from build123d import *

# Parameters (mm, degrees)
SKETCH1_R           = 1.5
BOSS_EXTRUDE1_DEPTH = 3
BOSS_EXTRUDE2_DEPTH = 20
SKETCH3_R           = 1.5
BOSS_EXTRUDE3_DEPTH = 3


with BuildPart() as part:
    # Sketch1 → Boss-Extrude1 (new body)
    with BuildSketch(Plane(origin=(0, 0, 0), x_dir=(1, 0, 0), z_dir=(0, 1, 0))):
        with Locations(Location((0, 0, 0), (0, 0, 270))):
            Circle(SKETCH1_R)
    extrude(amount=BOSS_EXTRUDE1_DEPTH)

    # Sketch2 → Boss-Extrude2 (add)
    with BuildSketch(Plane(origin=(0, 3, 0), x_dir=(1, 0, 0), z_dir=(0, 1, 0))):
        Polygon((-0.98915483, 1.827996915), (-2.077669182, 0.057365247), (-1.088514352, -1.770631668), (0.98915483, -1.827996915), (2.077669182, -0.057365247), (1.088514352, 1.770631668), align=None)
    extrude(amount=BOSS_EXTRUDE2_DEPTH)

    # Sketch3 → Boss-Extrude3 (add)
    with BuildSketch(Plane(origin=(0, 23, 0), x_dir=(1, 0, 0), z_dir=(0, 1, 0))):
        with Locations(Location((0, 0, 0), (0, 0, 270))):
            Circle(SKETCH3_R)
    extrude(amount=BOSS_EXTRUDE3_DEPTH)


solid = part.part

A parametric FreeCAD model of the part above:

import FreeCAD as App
import Part
import Sketcher
from FreeCAD import Vector


def add_polygon(sketch, points):
    """Adds a closed chain of lines whose ends are joined by coincident constraints."""
    first, n = sketch.GeometryCount, len(points)
    for a, b in zip(points, points[1:] + points[:1]):
        sketch.addGeometry(Part.LineSegment(App.Vector(*a, 0), App.Vector(*b, 0)), False)
    for i in range(n):
        sketch.addConstraint(Sketcher.Constraint("Coincident", first + i, 2, first + (i + 1) % n, 1))

doc = App.newDocument("Part")
body = doc.addObject("PartDesign::Body", "Body")

# Sketch on XZ plane
sketch1 = body.newObject("Sketcher::SketchObject", "Sketch")
sketch1.AttachmentSupport = (doc.getObject("XZ_Plane"), [""])
sketch1.MapMode = "FlatFace"
sketch1.addGeometry(Part.Circle(Vector(0, 0, 0), Vector(0, 0, 1), 1.5), False)
sketch1.addConstraint([
    Sketcher.Constraint("Coincident", 0, 3, -1, 1),
    Sketcher.Constraint("Diameter", 0, 3.0),
])
pad1 = body.newObject("PartDesign::Pad", "Pad")
pad1.Profile = sketch1
pad1.Length = 3
pad1.Reversed = True

# Sketch on XZ plane
sketch2 = body.newObject("Sketcher::SketchObject", "Sketch001")
sketch2.AttachmentSupport = (doc.getObject("XZ_Plane"), [""])
sketch2.MapMode = "FlatFace"
sketch2.AttachmentOffset = App.Placement(Vector(0, 0, -3), App.Rotation())
add_polygon(sketch2, [(-0.989155, -1.827997), (-2.077669, -0.057365), (-1.088514, 1.770632), (0.989155, 1.827997), (2.077669, 0.057365), (1.088514, -1.770632)])  # lines 0-5
sketch2.addConstraint([
    Sketcher.Constraint("Symmetric", 0, 2, 3, 2, -1, 1),
    Sketcher.Constraint("Symmetric", 1, 2, 4, 2, -1, 1),
    Sketcher.Constraint("Symmetric", 2, 2, 5, 2, -1, 1),
    Sketcher.Constraint("Equal", 0, 1),
    Sketcher.Constraint("Equal", 1, 2),
    Sketcher.Constraint("Distance", 0, 2.078461),
    Sketcher.Constraint("DistanceX", 0, 2, -1, 1, 2.077669),
    Sketcher.Constraint("DistanceY", -1, 1, 1, 2, 1.770632),
    Sketcher.Constraint("DistanceY", 3, 2, 2, 2, 1.770632),
])
pad2 = body.newObject("PartDesign::Pad", "Pad001")
pad2.Profile = sketch2
pad2.Length = 20
pad2.Reversed = True

# Sketch on XZ plane
sketch3 = body.newObject("Sketcher::SketchObject", "Sketch002")
sketch3.AttachmentSupport = (doc.getObject("XZ_Plane"), [""])
sketch3.MapMode = "FlatFace"
sketch3.AttachmentOffset = App.Placement(Vector(0, 0, -23), App.Rotation())
sketch3.addGeometry(Part.Circle(Vector(0, 0, 0), Vector(0, 0, 1), 1.5), False)
sketch3.addConstraint([
    Sketcher.Constraint("Coincident", 0, 3, -1, 1),
    Sketcher.Constraint("Diameter", 0, 3.0),
])
pad3 = body.newObject("PartDesign::Pad", "Pad002")
pad3.Profile = sketch3
pad3.Length = 3
pad3.Reversed = True

doc.recompute()
